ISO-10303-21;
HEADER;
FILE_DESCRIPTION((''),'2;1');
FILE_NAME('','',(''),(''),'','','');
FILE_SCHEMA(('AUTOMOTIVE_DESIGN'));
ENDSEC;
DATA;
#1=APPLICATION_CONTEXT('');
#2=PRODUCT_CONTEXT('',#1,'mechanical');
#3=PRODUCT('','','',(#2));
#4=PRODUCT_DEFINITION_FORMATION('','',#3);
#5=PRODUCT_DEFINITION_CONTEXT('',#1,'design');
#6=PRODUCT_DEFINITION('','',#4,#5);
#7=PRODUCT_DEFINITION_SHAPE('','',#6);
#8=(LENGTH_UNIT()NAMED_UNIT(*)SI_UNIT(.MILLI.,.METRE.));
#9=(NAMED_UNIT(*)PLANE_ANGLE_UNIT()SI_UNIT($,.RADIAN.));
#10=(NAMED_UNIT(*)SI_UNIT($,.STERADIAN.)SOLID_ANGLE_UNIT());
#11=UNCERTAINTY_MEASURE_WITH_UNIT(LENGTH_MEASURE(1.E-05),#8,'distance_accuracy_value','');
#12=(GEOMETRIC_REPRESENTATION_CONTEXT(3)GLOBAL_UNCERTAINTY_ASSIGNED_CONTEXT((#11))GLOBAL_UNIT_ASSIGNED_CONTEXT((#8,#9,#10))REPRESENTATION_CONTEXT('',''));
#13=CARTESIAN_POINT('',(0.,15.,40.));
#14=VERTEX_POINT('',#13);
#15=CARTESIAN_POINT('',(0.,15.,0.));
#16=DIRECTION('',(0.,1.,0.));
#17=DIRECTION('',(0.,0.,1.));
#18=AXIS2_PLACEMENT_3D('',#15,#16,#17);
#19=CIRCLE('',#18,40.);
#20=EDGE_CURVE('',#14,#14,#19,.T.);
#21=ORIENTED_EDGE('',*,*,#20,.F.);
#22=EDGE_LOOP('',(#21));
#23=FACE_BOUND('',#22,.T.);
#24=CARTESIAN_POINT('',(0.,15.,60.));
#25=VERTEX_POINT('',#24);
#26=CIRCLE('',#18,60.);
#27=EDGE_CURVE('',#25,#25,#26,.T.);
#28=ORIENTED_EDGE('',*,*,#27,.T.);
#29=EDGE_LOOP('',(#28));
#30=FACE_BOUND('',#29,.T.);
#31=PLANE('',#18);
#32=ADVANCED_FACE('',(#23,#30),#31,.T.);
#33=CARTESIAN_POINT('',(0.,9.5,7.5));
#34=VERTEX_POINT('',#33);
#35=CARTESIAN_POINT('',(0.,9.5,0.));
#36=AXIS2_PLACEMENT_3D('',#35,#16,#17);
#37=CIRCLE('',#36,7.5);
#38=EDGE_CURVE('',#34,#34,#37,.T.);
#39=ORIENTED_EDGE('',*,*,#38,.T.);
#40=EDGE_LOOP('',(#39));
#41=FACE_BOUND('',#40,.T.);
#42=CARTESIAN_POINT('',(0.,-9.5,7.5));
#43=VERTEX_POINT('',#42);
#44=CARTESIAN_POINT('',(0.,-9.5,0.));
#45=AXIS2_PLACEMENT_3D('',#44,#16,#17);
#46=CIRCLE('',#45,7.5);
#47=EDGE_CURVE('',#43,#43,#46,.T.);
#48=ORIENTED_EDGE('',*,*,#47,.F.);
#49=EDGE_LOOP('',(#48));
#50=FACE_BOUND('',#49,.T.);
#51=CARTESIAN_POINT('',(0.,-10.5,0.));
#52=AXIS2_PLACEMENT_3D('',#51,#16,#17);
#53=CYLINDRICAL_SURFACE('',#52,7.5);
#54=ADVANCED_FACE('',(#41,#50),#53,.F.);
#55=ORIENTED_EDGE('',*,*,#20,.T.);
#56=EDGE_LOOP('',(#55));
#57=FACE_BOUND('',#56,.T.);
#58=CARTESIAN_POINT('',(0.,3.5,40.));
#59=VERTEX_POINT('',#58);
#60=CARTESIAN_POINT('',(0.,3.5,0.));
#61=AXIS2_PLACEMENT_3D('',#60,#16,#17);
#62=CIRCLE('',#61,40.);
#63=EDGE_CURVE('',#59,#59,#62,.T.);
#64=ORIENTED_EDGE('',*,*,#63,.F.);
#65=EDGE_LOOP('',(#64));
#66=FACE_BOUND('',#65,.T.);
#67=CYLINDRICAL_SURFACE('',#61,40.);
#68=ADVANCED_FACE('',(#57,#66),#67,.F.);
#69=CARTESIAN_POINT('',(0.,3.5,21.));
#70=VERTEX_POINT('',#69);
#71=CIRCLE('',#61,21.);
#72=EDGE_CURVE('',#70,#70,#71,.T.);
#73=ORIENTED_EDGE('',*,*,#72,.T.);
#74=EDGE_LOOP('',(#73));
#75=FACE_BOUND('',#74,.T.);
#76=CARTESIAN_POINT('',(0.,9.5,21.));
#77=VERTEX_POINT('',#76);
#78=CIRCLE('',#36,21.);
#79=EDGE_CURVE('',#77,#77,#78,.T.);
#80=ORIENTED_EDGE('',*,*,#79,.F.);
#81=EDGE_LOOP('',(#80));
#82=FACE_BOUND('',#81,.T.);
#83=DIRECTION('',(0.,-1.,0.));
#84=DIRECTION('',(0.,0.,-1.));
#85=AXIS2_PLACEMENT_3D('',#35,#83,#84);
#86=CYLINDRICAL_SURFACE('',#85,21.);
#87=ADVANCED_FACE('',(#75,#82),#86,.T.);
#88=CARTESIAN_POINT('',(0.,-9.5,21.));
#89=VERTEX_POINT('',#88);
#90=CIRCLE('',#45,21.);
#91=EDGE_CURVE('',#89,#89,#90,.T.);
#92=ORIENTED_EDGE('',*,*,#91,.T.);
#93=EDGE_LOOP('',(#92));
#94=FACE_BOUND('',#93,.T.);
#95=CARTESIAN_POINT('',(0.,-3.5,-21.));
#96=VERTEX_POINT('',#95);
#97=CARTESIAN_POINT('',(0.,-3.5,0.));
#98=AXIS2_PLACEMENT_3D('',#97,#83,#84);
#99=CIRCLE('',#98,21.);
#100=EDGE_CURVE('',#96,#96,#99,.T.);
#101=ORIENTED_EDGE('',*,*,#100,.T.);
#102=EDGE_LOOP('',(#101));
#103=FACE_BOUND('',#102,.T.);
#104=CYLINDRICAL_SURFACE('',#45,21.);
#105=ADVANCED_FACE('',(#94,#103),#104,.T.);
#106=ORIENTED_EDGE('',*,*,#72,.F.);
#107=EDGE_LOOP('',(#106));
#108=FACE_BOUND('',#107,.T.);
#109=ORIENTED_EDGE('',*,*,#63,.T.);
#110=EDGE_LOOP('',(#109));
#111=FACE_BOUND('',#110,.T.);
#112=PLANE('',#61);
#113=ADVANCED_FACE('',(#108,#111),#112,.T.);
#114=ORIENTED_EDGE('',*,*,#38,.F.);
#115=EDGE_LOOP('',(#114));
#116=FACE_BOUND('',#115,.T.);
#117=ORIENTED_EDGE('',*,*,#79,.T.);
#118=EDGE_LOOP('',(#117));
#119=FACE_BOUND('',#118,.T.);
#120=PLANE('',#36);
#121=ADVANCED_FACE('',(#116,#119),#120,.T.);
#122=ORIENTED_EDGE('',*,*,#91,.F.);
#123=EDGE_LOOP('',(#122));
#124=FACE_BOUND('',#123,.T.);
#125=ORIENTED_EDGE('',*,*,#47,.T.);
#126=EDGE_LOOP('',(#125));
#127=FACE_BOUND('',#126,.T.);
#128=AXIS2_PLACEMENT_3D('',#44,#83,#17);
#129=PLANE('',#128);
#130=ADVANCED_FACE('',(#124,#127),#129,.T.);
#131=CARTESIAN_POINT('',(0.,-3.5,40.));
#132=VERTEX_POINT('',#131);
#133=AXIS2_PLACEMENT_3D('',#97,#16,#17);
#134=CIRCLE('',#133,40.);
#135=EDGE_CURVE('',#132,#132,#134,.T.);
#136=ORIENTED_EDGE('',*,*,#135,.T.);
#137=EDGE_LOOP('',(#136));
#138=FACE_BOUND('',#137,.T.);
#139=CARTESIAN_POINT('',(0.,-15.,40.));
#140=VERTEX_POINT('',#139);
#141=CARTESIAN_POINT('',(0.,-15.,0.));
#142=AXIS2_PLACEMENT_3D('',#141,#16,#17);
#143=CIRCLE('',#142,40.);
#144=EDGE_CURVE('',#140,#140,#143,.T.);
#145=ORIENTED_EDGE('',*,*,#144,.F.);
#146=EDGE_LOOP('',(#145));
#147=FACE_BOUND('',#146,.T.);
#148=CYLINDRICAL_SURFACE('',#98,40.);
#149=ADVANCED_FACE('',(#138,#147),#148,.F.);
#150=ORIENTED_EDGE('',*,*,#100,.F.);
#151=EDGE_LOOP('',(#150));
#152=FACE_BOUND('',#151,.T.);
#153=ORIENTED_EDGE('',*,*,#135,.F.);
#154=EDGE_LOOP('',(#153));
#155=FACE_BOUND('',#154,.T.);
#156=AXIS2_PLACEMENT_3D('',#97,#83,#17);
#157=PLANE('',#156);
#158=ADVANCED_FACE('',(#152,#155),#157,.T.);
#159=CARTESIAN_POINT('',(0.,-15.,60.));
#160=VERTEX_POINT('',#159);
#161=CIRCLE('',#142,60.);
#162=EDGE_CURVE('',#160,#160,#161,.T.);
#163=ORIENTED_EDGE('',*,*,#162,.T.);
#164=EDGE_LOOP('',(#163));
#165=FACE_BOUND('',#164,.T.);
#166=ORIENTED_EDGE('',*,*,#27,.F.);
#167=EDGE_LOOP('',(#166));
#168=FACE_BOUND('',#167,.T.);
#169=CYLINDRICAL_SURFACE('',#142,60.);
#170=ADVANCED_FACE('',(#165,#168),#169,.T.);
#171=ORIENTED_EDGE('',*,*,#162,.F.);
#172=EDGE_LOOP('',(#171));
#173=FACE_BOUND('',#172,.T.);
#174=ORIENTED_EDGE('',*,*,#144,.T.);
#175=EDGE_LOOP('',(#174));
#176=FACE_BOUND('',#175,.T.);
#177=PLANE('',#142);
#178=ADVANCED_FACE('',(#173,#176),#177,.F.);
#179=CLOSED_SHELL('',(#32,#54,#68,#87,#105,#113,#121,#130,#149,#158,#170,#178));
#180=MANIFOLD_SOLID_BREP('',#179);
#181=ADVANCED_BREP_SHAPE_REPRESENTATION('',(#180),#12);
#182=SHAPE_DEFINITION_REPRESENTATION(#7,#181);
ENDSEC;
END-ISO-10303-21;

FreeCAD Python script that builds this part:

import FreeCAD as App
import Part
import Sketcher
Q = App.Units.Quantity

doc = App.newDocument("Part")
body = doc.addObject("PartDesign::Body", "Body")

sketch1 = doc.addObject("Sketcher::SketchObject", "Sketch")
body.addObject(sketch1)
sketch1.AttachmentSupport = (doc.XZ_Plane, [""])
sketch1.MapMode = "FlatFace"
sketch1.addGeometry(Part.Circle(App.Vector(0, 0, 0), App.Vector(0, 0, 1), 60), False)
sketch1.addConstraint([
    Sketcher.Constraint("Coincident", 0, 3, -1, 1),
    Sketcher.Constraint("Diameter", 0, Q("120 mm")),
])
pad1 = doc.addObject("PartDesign::Pad", "Pad")
body.addObject(pad1)
pad1.Profile = sketch1
pad1.Type = "TwoLengths"
pad1.Length = 15
pad1.Length2 = 15
pad1.Reversed = True

sketch2 = doc.addObject("Sketcher::SketchObject", "Sketch001")
body.addObject(sketch2)
sketch2.AttachmentSupport = (doc.XZ_Plane, [""])
sketch2.MapMode = "FlatFace"
sketch2.AttachmentOffset = App.Placement(App.Vector(0, 0, -15), App.Rotation())
sketch2.addGeometry(Part.Circle(App.Vector(0, 0, 0), App.Vector(0, 0, 1), 40), False)
sketch2.addConstraint([
    Sketcher.Constraint("Coincident", 0, 3, -1, 1),
    Sketcher.Constraint("Diameter", 0, Q("80 mm")),
])
pocket1 = doc.addObject("PartDesign::Pocket", "Pocket")
body.addObject(pocket1)
pocket1.Profile = sketch2
pocket1.Length = 11.5
pocket1.Reversed = True

sketch3 = doc.addObject("Sketcher::SketchObject", "Sketch002")
body.addObject(sketch3)
sketch3.AttachmentSupport = (doc.XZ_Plane, [""])
sketch3.MapMode = "FlatFace"
sketch3.AttachmentOffset = App.Placement(App.Vector(0, 0, -3.5), App.Rotation())
sketch3.addGeometry(Part.Circle(App.Vector(0, 0, 0), App.Vector(0, 0, 1), 21), False)
sketch3.addConstraint([
    Sketcher.Constraint("Coincident", 0, 3, -1, 1),
    Sketcher.Constraint("Diameter", 0, Q("42 mm")),
])
pad2 = doc.addObject("PartDesign::Pad", "Pad001")
body.addObject(pad2)
pad2.Profile = sketch3
pad2.Length = 6
pad2.Reversed = True

sketch4 = doc.addObject("Sketcher::SketchObject", "Sketch003")
body.addObject(sketch4)
sketch4.AttachmentSupport = (doc.XZ_Plane, [""])
sketch4.MapMode = "FlatFace"
sketch4.AttachmentOffset = App.Placement(App.Vector(0, 0, -9.5), App.Rotation())
sketch4.addGeometry(Part.Circle(App.Vector(0, 0, 0), App.Vector(0, 0, 1), 8), False)
sketch4.addConstraint([
    Sketcher.Constraint("Coincident", 0, 3, -1, 1),
    Sketcher.Constraint("Diameter", 0, Q("15 mm")),
])
pocket2 = doc.addObject("PartDesign::Pocket", "Pocket001")
body.addObject(pocket2)
pocket2.Profile = sketch4
pocket2.Length = 20
pocket2.Reversed = True
doc.recompute()

mirrored = doc.addObject("PartDesign::Mirrored", "Mirrored")
body.addObject(mirrored)
mirrored.Originals = [pocket1, pad2, pocket2]
mirrored.MirrorPlane = (doc.XZ_Plane, [""])
body.Tip = mirrored

doc.recompute()
